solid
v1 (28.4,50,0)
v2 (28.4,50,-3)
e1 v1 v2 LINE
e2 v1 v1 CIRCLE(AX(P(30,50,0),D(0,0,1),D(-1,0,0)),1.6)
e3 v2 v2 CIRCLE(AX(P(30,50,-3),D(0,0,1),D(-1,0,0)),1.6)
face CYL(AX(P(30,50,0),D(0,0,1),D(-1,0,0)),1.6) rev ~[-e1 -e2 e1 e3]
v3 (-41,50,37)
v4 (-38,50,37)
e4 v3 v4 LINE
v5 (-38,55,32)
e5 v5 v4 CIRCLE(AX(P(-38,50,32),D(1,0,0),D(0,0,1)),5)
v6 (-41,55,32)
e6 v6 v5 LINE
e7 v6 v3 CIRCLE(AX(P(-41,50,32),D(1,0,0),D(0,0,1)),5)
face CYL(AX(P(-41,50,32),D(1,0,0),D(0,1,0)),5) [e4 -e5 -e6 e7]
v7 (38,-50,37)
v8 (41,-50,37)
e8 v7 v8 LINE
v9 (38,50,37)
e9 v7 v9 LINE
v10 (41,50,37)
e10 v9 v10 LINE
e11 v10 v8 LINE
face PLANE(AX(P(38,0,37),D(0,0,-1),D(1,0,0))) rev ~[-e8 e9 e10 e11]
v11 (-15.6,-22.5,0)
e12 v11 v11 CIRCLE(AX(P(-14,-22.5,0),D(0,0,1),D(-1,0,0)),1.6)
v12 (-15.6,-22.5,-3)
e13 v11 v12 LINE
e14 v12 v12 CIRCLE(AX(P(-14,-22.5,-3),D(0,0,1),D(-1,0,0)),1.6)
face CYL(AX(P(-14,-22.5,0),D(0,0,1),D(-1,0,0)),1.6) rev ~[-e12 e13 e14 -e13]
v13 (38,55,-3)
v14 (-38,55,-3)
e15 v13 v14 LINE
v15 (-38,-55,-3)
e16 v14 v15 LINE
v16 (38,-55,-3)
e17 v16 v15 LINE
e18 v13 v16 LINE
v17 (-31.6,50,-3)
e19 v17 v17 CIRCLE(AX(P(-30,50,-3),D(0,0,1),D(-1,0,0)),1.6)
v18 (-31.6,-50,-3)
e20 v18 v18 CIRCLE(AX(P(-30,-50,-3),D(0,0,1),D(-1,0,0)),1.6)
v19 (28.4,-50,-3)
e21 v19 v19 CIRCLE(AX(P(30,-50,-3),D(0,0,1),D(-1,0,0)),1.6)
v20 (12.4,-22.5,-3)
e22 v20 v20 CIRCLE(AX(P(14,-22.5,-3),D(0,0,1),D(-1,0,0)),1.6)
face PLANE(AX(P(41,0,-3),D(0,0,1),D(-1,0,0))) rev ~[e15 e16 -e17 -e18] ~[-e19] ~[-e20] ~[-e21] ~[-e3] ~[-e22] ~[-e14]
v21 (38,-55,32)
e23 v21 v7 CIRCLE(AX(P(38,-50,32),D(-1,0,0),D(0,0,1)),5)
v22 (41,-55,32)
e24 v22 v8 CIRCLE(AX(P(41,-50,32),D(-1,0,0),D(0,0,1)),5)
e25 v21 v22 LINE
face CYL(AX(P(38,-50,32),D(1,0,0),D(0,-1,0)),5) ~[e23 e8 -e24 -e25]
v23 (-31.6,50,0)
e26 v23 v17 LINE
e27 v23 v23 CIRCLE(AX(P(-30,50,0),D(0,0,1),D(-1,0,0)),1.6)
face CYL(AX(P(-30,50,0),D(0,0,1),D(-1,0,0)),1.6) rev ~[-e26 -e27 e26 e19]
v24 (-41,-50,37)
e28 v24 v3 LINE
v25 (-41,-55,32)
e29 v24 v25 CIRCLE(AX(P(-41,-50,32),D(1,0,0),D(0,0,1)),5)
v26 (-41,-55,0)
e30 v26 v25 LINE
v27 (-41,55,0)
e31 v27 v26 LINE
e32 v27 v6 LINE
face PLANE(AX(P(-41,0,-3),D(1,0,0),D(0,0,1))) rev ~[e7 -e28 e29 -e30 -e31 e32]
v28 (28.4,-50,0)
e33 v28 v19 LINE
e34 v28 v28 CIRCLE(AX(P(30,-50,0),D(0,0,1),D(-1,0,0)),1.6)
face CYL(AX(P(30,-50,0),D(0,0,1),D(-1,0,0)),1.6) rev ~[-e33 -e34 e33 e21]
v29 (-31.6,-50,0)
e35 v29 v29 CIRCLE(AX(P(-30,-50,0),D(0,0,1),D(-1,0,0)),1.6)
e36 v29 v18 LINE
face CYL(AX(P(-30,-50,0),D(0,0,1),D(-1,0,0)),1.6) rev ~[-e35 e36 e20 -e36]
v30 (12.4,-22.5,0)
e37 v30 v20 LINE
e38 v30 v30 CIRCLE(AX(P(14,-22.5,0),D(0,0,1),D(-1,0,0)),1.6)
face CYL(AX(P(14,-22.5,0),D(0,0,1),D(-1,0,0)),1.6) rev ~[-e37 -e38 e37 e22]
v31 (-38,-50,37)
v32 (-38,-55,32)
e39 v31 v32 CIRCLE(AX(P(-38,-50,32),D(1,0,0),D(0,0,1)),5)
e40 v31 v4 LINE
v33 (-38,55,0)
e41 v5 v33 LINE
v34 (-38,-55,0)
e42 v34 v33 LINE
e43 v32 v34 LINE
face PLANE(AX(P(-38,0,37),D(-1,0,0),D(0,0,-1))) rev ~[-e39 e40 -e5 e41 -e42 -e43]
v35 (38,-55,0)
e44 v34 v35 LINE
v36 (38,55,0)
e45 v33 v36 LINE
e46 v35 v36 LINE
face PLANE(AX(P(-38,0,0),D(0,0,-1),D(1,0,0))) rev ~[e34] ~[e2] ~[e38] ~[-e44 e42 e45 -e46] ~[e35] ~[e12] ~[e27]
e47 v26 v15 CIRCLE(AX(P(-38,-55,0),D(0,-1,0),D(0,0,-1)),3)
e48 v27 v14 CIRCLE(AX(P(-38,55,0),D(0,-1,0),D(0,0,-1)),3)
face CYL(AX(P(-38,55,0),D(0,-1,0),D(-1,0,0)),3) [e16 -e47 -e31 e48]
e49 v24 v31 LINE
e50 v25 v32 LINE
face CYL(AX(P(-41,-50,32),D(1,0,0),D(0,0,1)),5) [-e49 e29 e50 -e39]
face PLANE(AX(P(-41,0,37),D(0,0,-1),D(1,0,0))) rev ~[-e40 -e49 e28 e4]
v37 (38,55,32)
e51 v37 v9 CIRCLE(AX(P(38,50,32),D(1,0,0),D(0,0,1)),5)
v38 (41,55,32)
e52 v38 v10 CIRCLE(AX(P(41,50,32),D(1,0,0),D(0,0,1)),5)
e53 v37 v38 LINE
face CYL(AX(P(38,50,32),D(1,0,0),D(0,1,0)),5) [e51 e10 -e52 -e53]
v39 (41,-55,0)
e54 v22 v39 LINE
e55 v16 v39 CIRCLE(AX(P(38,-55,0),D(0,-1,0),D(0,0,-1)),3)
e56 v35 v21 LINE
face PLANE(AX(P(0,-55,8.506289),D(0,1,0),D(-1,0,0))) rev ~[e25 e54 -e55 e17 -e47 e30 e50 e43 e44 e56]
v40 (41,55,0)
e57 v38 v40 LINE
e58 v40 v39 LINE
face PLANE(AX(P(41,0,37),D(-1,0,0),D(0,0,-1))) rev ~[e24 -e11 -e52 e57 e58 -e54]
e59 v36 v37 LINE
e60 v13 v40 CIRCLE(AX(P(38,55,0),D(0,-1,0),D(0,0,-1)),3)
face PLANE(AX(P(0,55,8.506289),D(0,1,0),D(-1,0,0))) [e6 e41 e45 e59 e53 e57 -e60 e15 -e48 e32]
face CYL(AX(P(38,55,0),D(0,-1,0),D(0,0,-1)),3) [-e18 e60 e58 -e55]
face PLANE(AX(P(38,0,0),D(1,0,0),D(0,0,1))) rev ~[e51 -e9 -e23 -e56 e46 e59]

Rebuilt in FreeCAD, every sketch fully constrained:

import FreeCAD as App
import Part
import Sketcher
Q = App.Units.Quantity


def edges_at(feature, points):
    """Names of the edges that pass closest to the given points."""
    edges = feature.Shape.Edges
    near = lambda p: min(range(len(edges)), key=lambda i: edges[i].distToShape(Part.Vertex(*p))[0])
    return sorted({f"Edge{near(p) + 1}" for p in points})


def add_polygon(sketch, points):
    """Adds a closed chain of lines whose ends are joined by coincident constraints."""
    first, n = sketch.GeometryCount, len(points)
    for a, b in zip(points, points[1:] + points[:1]):
        sketch.addGeometry(Part.LineSegment(App.Vector(*a, 0), App.Vector(*b, 0)), False)
    for i in range(n):
        sketch.addConstraint(Sketcher.Constraint("Coincident", first + i, 2, first + (i + 1) % n, 1))

doc = App.newDocument("Part")
body = doc.addObject("PartDesign::Body", "Body")

# Sketch on XZ plane
sketch1 = body.newObject("Sketcher::SketchObject", "Sketch")
sketch1.AttachmentSupport = (doc.getObject("XZ_Plane"), [""])
sketch1.MapMode = "FlatFace"
add_polygon(sketch1, [(-41, 37), (-41, -3), (41, -3), (41, 37), (38, 37), (38, 0), (-38, 0), (-38, 37)])  # lines 0-7
sketch1.addConstraint(Sketcher.Constraint("Vertical", 0))
sketch1.addConstraint(Sketcher.Constraint("Horizontal", 1))
sketch1.addConstraint(Sketcher.Constraint("Vertical", 2))
sketch1.addConstraint(Sketcher.Constraint("Horizontal", 3))
sketch1.addConstraint(Sketcher.Constraint("Vertical", 4))
sketch1.addConstraint(Sketcher.Constraint("Horizontal", 5))
sketch1.addConstraint(Sketcher.Constraint("Vertical", 6))
sketch1.addConstraint(Sketcher.Constraint("Horizontal", 7))
sketch1.addConstraint(Sketcher.Constraint("Symmetric", 4, 2, 5, 2, -1, 1))
sketch1.addConstraint(Sketcher.Constraint("Symmetric", 2, 2, 7, 2, -2))
sketch1.addConstraint(Sketcher.Constraint("DistanceX", 1, 1, 1, 2, Q("82 mm")))
sketch1.addConstraint(Sketcher.Constraint("DistanceX", 3, 2, 3, 1, Q("3 mm")))
sketch1.addConstraint(Sketcher.Constraint("DistanceY", 0, 2, 0, 1, Q("40 mm")))
sketch1.addConstraint(Sketcher.Constraint("DistanceY", 4, 2, 4, 1, Q("37 mm")))
pad1 = body.newObject("PartDesign::Pad", "Pad")
pad1.Profile = sketch1
pad1.Length = 110
pad1.Midplane = True

# Sketch on XY plane
sketch2 = body.newObject("Sketcher::SketchObject", "Sketch001")
sketch2.AttachmentSupport = (doc.getObject("XY_Plane"), [""])
sketch2.MapMode = "FlatFace"
sketch2.addGeometry(Part.Circle(App.Vector(30, -50, 0), App.Vector(0, 0, 1), 1.6), False)
sketch2.addGeometry(Part.Circle(App.Vector(-30, -50, 0), App.Vector(0, 0, 1), 1.6), False)
sketch2.addGeometry(Part.Circle(App.Vector(30, 50, 0), App.Vector(0, 0, 1), 1.6), False)
sketch2.addGeometry(Part.Circle(App.Vector(-30, 50, 0), App.Vector(0, 0, 1), 1.6), False)
sketch2.addGeometry(Part.Circle(App.Vector(14, -22.5, 0), App.Vector(0, 0, 1), 1.6), False)
sketch2.addGeometry(Part.Circle(App.Vector(-14, -22.5, 0), App.Vector(0, 0, 1), 1.6), False)
sketch2.addConstraint(Sketcher.Constraint("Equal", 0, 1))
sketch2.addConstraint(Sketcher.Constraint("Equal", 1, 2))
sketch2.addConstraint(Sketcher.Constraint("Equal", 2, 3))
sketch2.addConstraint(Sketcher.Constraint("Equal", 3, 4))
sketch2.addConstraint(Sketcher.Constraint("Equal", 4, 5))
sketch2.addConstraint(Sketcher.Constraint("Symmetric", 1, 3, 2, 3, -1, 1))
sketch2.addConstraint(Sketcher.Constraint("Symmetric", 0, 3, 3, 3, -1, 1))
sketch2.addConstraint(Sketcher.Constraint("Symmetric", 0, 3, 1, 3, -2))
sketch2.addConstraint(Sketcher.Constraint("Symmetric", 4, 3, 5, 3, -2))
sketch2.addConstraint(Sketcher.Constraint("Diameter", 0, Q("3.2 mm")))
sketch2.addConstraint(Sketcher.Constraint("DistanceX", -1, 1, 0, 3, Q("30 mm")))
sketch2.addConstraint(Sketcher.Constraint("DistanceY", 0, 3, -1, 1, Q("50 mm")))
sketch2.addConstraint(Sketcher.Constraint("DistanceX", -1, 1, 4, 3, Q("14 mm")))
sketch2.addConstraint(Sketcher.Constraint("DistanceY", 4, 3, -1, 1, Q("22.5 mm")))
pocket1 = body.newObject("PartDesign::Pocket", "Pocket")
pocket1.Profile = sketch2
pocket1.Type = "ThroughAll"
doc.recompute()

fillet = body.newObject("PartDesign::Fillet", "Fillet")
fillet.Base = (pocket1, edges_at(pocket1, [(-41, 0, -3), (41, 0, -3)]))
fillet.Radius = 3
doc.recompute()

fillet2 = body.newObject("PartDesign::Fillet", "Fillet001")
fillet2.Base = (fillet, edges_at(fillet, [
    (39.5, -55, 37),
    (-39.5, -55, 37),
    (-39.5, 55, 37),
    (39.5, 55, 37),
]))
fillet2.Radius = 5

doc.recompute()
